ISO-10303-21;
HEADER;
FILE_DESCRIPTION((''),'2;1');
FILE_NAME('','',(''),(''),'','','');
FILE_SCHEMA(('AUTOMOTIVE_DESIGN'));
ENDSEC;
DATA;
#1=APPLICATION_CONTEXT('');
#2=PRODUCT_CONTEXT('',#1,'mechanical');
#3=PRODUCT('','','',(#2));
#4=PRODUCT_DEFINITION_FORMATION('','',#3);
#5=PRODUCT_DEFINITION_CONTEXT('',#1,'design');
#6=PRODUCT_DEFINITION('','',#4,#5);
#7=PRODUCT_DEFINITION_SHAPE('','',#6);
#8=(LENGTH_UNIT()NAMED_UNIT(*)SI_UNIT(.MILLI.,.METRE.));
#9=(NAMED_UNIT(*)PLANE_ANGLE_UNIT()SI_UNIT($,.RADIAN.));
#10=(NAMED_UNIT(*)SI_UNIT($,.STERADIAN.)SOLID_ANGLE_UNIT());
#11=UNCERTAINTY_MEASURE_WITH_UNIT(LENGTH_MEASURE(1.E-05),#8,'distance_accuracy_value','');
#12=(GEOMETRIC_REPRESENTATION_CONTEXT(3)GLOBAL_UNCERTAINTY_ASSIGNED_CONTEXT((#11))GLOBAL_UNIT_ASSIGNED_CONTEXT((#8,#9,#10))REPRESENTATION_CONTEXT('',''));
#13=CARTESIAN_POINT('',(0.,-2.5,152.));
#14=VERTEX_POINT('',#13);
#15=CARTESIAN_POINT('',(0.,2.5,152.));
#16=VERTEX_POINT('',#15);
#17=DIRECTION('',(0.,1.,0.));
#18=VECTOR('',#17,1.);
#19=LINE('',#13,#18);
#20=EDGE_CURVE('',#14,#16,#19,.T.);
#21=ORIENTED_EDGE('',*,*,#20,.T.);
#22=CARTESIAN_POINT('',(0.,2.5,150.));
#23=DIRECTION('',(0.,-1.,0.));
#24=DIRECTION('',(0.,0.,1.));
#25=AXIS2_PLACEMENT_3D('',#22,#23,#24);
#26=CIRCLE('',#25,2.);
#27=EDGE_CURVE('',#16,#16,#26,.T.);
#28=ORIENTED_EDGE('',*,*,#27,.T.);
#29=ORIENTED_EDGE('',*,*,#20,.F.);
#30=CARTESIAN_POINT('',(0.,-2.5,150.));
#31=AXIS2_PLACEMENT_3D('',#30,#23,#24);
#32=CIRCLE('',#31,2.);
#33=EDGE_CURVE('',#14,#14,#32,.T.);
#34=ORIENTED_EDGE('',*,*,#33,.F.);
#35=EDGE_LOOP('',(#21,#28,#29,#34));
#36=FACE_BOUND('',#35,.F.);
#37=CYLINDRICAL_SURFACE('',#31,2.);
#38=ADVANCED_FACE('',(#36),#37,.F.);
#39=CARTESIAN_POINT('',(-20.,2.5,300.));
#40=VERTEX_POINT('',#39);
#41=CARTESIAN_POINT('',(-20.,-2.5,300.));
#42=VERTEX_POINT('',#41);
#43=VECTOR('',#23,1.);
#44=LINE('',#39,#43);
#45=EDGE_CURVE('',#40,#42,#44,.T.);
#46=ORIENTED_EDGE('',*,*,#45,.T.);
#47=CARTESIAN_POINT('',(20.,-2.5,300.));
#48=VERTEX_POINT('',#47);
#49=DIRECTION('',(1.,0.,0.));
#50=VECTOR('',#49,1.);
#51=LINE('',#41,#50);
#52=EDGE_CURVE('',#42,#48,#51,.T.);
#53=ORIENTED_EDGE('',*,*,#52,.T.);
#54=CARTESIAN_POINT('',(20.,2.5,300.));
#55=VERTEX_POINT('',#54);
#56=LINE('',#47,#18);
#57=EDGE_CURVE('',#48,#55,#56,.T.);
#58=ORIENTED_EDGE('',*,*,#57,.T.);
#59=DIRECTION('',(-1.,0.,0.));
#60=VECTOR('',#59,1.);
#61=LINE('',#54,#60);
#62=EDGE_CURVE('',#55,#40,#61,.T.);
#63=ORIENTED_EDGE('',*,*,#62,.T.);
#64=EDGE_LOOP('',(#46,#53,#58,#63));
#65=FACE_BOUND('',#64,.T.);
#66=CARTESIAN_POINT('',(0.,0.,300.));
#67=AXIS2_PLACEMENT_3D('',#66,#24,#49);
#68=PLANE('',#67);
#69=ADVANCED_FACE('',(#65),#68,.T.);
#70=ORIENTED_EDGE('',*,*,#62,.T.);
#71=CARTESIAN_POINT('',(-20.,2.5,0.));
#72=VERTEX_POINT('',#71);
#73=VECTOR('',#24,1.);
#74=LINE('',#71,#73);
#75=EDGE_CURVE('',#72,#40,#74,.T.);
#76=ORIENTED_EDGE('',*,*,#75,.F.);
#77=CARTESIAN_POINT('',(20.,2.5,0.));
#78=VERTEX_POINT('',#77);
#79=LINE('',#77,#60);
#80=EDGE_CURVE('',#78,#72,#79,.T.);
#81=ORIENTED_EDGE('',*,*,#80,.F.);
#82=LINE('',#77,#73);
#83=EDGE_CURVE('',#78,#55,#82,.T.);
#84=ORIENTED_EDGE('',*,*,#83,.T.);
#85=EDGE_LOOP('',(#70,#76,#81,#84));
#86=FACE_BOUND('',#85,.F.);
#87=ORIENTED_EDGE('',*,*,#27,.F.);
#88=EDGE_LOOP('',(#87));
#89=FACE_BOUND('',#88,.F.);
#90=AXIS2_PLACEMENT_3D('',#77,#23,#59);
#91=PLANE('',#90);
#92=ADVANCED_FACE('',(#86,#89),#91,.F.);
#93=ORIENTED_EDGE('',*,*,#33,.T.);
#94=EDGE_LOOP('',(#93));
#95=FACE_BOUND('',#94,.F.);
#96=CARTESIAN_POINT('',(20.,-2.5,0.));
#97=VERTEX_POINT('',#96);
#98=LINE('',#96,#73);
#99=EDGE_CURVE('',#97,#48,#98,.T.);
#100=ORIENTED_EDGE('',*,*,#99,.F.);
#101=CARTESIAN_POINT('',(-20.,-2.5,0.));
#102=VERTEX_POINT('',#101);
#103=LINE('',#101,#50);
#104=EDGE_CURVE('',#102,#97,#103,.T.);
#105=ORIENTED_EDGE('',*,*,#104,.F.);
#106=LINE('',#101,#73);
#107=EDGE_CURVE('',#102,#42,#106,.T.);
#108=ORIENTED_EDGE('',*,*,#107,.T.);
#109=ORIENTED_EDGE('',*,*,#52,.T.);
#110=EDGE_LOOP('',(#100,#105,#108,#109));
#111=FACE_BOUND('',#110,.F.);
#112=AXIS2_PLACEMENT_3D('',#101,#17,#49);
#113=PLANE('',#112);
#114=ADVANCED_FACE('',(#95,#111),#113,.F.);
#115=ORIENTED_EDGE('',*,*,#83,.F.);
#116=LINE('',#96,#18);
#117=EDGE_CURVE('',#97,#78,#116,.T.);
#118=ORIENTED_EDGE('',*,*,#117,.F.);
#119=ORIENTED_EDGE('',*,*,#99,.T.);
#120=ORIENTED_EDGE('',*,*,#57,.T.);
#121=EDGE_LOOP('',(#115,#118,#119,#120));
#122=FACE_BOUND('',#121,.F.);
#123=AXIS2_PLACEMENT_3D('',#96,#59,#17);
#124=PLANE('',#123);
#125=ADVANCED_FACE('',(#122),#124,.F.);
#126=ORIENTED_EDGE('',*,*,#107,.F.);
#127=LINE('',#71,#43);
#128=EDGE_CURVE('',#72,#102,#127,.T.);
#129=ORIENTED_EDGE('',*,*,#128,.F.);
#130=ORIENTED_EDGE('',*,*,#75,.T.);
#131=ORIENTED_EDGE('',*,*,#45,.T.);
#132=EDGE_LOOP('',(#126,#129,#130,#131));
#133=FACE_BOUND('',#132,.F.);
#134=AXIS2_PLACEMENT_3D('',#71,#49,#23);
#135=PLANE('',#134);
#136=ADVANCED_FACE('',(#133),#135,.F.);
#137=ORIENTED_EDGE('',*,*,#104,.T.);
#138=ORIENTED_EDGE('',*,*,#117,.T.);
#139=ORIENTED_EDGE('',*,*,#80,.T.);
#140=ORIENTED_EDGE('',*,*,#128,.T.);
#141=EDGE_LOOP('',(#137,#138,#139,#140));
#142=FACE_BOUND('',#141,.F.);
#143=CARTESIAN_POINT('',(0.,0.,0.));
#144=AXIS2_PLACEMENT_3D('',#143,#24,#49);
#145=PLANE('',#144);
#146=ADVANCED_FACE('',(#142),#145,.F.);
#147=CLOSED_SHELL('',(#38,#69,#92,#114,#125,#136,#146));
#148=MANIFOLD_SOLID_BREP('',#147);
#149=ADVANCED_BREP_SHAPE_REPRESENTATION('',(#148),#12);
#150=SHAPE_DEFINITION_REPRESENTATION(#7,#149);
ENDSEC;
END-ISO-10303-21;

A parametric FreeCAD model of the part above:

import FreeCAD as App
import Part
import Sketcher

V = App.Vector
Q = App.Units.Quantity


def add_polygon(sketch, points):
    """Adds a closed chain of lines whose ends are joined by coincident constraints."""
    first, n = sketch.GeometryCount, len(points)
    for a, b in zip(points, points[1:] + points[:1]):
        sketch.addGeometry(Part.LineSegment(App.Vector(*a, 0), App.Vector(*b, 0)), False)
    for i in range(n):
        sketch.addConstraint(Sketcher.Constraint("Coincident", first + i, 2, first + (i + 1) % n, 1))

doc = App.newDocument("Part")
body = doc.addObject("PartDesign::Body", "Body")

sketch1 = body.newObject("Sketcher::SketchObject", "Sketch")
sketch1.AttachmentSupport = (doc.getObject("XY_Plane"), [""])
sketch1.MapMode = "FlatFace"
add_polygon(sketch1, [(-20, 2), (-20, -2), (20, -2), (20, 2)])
sketch1.addConstraint([
    Sketcher.Constraint("Vertical", 0),
    Sketcher.Constraint("Horizontal", 1),
    Sketcher.Constraint("Vertical", 2),
    Sketcher.Constraint("Horizontal", 3),
    Sketcher.Constraint("Symmetric", 0, 2, 2, 2, -1, 1),
    Sketcher.Constraint("DistanceX", 0, 2, -1, 1, Q("20 mm")),
    Sketcher.Constraint("DistanceY", 0, 2, 0, 1, Q("5 mm")),
])
pad1 = body.newObject("PartDesign::Pad", "Pad")
pad1.Profile = sketch1
pad1.Length = 300

sketch2 = body.newObject("Sketcher::SketchObject", "Sketch001")
sketch2.AttachmentSupport = (doc.getObject("XZ_Plane"), [""])
sketch2.MapMode = "FlatFace"
sketch2.AttachmentOffset = App.Placement(V(0, 0, 2.5), App.Rotation())
sketch2.addGeometry(Part.Circle(V(0, 150, 0), V(0, 0, 1), 2), False)
sketch2.addConstraint([
    Sketcher.Constraint("PointOnObject", 0, 3, -2),
    Sketcher.Constraint("Diameter", 0, Q("4 mm")),
    Sketcher.Constraint("DistanceY", -1, 1, 0, 3, Q("150 mm")),
])
pocket1 = body.newObject("PartDesign::Pocket", "Pocket")
pocket1.Profile = sketch2
pocket1.Type = "ThroughAll"

doc.recompute()
